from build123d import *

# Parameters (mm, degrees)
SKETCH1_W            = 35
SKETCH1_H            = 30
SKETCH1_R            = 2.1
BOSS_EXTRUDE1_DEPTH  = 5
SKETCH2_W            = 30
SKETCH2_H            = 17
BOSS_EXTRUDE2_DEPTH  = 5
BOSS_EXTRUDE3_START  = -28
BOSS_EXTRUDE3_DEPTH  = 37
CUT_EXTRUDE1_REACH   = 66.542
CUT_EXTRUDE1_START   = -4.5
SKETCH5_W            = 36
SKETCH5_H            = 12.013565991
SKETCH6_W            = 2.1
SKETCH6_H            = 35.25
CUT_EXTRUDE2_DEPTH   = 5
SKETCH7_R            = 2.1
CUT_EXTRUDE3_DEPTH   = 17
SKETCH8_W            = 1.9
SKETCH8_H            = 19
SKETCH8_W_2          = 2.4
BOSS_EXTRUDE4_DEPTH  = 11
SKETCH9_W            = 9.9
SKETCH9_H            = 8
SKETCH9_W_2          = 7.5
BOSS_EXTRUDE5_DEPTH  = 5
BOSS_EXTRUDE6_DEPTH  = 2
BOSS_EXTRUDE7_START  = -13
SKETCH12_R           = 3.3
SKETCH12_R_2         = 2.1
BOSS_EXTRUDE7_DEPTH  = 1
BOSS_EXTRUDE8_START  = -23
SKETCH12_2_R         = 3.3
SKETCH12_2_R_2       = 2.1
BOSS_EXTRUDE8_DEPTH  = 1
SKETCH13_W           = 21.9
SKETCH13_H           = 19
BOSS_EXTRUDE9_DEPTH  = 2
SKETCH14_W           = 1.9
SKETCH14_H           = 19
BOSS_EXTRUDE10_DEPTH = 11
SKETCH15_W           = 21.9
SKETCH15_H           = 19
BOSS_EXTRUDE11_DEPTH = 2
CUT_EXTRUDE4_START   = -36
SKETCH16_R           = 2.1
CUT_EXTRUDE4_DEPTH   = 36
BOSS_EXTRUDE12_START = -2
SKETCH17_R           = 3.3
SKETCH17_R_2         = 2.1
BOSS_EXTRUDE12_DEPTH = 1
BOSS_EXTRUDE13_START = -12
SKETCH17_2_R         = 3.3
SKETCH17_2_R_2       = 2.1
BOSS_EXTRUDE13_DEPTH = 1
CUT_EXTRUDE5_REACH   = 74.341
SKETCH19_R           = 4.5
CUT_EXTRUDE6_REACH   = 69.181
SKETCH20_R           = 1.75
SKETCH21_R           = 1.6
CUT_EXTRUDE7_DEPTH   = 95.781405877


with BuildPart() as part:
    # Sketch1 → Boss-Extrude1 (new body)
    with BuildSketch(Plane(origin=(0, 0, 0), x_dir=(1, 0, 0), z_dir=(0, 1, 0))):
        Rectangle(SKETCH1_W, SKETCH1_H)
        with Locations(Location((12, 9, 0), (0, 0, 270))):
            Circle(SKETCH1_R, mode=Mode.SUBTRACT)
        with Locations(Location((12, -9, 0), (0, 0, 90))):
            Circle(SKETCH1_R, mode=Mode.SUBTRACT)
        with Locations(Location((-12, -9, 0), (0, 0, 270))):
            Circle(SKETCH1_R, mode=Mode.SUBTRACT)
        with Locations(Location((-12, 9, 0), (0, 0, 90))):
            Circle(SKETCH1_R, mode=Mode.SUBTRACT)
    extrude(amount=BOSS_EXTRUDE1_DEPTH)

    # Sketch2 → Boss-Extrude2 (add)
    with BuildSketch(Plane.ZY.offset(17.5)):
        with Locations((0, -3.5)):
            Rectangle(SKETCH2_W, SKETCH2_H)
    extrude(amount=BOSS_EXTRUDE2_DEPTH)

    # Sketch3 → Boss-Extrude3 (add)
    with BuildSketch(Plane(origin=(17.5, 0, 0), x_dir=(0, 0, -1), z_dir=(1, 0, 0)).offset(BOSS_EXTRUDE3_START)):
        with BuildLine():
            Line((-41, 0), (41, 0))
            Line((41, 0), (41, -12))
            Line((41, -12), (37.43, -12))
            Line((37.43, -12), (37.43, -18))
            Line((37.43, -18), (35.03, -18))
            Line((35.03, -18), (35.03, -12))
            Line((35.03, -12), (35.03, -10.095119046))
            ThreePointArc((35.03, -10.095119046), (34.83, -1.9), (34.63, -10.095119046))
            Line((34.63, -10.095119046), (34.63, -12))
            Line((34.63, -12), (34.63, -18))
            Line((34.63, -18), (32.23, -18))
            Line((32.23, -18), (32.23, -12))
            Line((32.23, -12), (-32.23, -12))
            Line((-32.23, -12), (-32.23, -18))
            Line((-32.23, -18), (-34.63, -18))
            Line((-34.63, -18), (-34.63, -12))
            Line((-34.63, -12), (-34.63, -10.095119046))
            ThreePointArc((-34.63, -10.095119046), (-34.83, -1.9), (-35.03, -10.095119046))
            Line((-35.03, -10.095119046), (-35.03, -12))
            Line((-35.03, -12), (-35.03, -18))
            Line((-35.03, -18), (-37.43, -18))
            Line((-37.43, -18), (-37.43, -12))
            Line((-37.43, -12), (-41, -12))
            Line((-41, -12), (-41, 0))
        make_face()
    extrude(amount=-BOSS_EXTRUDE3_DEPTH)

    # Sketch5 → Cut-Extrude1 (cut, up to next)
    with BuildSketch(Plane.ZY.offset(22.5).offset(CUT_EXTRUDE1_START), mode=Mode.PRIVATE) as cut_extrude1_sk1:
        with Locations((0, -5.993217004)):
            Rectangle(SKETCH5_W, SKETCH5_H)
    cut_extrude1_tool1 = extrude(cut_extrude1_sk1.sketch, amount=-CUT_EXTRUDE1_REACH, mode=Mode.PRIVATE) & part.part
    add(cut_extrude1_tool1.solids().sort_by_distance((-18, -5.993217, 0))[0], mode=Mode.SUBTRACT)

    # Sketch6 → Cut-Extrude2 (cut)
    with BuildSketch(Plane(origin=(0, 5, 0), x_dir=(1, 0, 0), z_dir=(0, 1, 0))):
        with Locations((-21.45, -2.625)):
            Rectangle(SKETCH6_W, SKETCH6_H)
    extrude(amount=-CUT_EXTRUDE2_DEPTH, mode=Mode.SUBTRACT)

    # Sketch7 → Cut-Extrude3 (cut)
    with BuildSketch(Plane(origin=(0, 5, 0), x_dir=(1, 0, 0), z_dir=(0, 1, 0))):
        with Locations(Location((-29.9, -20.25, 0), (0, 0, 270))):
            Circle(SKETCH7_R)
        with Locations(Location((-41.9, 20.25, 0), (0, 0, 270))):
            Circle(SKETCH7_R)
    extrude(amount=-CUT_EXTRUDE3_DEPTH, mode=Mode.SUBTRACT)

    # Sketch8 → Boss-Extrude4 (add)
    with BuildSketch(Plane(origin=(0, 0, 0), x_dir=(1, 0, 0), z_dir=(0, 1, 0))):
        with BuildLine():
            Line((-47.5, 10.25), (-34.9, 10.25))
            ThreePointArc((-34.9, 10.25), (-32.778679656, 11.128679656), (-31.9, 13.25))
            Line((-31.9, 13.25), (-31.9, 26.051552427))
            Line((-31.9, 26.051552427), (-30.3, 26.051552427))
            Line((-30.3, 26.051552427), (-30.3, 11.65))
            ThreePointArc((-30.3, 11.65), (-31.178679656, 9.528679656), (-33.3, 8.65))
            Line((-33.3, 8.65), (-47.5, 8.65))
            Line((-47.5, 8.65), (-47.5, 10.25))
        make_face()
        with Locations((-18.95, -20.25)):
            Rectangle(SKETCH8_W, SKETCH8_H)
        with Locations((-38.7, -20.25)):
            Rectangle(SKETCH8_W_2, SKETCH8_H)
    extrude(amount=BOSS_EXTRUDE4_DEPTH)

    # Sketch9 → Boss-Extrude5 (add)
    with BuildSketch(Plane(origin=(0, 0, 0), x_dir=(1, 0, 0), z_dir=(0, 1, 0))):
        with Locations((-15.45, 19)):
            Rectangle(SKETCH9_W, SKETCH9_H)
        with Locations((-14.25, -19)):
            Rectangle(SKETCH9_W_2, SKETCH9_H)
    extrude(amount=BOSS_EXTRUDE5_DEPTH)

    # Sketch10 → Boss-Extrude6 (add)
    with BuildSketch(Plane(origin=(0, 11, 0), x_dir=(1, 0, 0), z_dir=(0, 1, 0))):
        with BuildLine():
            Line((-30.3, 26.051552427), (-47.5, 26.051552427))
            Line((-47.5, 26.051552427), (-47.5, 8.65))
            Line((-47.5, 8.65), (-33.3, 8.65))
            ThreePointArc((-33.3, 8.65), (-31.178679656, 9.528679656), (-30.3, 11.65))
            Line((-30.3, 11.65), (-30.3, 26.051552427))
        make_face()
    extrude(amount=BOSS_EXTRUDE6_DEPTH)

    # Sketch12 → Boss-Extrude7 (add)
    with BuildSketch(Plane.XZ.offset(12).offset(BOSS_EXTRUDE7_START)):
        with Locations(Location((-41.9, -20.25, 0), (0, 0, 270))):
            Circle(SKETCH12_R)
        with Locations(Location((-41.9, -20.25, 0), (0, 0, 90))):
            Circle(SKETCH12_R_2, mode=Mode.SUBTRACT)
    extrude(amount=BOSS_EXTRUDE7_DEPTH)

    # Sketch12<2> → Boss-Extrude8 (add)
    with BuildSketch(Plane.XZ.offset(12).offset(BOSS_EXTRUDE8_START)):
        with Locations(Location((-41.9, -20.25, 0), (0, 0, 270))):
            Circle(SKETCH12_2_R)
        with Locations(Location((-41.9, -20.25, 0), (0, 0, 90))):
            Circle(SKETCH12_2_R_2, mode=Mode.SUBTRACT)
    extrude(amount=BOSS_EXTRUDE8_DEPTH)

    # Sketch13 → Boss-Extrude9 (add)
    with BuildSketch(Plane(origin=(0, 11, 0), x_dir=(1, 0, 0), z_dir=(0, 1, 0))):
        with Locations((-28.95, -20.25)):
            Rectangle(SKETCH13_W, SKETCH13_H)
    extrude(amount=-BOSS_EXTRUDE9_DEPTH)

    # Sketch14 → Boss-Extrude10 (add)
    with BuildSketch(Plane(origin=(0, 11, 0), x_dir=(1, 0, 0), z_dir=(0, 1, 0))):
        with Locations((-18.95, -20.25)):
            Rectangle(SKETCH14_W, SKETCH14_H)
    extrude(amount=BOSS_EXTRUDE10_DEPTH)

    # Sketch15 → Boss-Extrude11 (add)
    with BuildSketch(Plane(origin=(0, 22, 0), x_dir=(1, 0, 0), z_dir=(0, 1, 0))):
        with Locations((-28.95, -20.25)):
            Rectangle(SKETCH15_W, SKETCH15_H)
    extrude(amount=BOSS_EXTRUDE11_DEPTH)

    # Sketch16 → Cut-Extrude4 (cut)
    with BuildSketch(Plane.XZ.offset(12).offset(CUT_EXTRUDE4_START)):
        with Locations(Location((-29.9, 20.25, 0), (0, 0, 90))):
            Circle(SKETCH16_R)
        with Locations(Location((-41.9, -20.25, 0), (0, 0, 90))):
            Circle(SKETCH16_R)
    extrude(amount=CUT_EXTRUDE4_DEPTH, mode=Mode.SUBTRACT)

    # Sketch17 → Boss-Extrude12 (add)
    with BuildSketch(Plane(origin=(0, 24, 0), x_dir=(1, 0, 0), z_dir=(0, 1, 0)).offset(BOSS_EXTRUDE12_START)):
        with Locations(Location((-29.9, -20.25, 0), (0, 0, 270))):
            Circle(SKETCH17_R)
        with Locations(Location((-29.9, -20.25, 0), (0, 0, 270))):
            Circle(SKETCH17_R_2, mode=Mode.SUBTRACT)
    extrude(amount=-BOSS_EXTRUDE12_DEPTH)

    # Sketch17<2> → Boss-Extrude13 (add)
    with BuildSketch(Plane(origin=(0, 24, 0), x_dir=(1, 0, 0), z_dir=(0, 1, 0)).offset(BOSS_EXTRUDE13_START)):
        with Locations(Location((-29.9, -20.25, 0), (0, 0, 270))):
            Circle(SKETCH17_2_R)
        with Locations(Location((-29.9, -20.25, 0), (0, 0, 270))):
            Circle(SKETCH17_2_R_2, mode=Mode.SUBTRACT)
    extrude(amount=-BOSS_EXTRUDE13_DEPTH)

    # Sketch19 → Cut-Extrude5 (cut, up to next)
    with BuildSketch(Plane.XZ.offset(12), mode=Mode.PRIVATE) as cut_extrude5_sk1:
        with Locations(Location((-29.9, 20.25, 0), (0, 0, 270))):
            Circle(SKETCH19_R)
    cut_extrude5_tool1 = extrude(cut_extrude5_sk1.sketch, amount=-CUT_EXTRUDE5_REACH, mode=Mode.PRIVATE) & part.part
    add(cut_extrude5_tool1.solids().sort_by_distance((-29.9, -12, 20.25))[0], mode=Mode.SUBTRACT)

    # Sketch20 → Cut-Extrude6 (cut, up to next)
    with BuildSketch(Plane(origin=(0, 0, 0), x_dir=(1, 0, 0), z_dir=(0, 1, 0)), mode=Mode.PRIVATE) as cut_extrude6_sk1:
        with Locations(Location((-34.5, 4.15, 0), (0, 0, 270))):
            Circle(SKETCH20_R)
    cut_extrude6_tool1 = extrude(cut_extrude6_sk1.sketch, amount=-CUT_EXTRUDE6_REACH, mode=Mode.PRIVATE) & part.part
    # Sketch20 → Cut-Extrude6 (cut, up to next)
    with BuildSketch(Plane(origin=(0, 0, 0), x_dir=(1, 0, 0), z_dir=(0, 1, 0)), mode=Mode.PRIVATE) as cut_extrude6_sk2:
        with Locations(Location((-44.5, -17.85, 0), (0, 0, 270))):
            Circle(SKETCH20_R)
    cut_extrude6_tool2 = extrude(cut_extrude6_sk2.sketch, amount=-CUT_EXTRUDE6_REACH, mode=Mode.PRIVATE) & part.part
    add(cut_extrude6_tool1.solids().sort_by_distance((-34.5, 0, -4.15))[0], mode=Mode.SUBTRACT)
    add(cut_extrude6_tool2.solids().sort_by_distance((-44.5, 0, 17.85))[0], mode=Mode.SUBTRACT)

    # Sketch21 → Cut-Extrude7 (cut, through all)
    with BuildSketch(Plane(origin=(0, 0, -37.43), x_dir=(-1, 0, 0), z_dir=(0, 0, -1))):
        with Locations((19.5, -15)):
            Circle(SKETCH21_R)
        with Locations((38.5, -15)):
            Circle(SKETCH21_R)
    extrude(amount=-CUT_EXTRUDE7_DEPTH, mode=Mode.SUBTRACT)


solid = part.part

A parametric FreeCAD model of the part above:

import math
import FreeCAD as App
import Part
import Sketcher
from FreeCAD import Vector

doc = App.newDocument("Part")
body = doc.addObject("PartDesign::Body", "Body")

sketch1 = body.newObject("Sketcher::SketchObject", "Sketch")
sketch1.AttachmentSupport = (doc.getObject("XZ_Plane"), [""])
sketch1.MapMode = "FlatFace"
sketch1.addGeometry([
    Part.LineSegment(Vector(-17.5, -15, 0), Vector(-17.5, 15, 0)),
    Part.LineSegment(Vector(-17.5, 15, 0), Vector(17.5, 15, 0)),
    Part.LineSegment(Vector(17.5, 15, 0), Vector(17.5, -15, 0)),
    Part.LineSegment(Vector(17.5, -15, 0), Vector(-17.5, -15, 0)),
    Part.Circle(Vector(-12, 9, 0), Vector(0, 0, 1), 2.1),
    Part.Circle(Vector(12, 9, 0), Vector(0, 0, 1), 2.1),
    Part.Circle(Vector(-12, -9, 0), Vector(0, 0, 1), 2.1),
    Part.Circle(Vector(12, -9, 0), Vector(0, 0, 1), 2.1),
], False)
sketch1.addConstraint([
    Sketcher.Constraint("Coincident", 0, 2, 1, 1),
    Sketcher.Constraint("Coincident", 1, 2, 2, 1),
    Sketcher.Constraint("Coincident", 2, 2, 3, 1),
    Sketcher.Constraint("Coincident", 3, 2, 0, 1),
    Sketcher.Constraint("Vertical", 0),
    Sketcher.Constraint("Horizontal", 1),
    Sketcher.Constraint("Vertical", 2),
    Sketcher.Constraint("Horizontal", 3),
    Sketcher.Constraint("Equal", 4, 5),
    Sketcher.Constraint("Equal", 5, 6),
    Sketcher.Constraint("Equal", 6, 7),
    Sketcher.Constraint("Symmetric", 5, 3, 6, 3, -1, 1),
    Sketcher.Constraint("Symmetric", 4, 3, 7, 3, -1, 1),
    Sketcher.Constraint("Symmetric", 0, 2, 2, 2, -1, 1),
    Sketcher.Constraint("Symmetric", 4, 3, 5, 3, -2),
    Sketcher.Constraint("Diameter", 4, 4.2),
    Sketcher.Constraint("DistanceX", 1, 1, 1, 2, 35.0),
    Sketcher.Constraint("DistanceY", 0, 1, 0, 2, 30.0),
    Sketcher.Constraint("DistanceX", 4, 3, -1, 1, 12.0),
    Sketcher.Constraint("DistanceY", -1, 1, 4, 3, 9.0),
])
pad1 = body.newObject("PartDesign::Pad", "Pad")
pad1.Profile = sketch1
pad1.Length = 5
pad1.Reversed = True

sketch2 = body.newObject("Sketcher::SketchObject", "Sketch001")
sketch2.AttachmentSupport = (doc.getObject("YZ_Plane"), [""])
sketch2.MapMode = "FlatFace"
sketch2.AttachmentOffset = App.Placement(Vector(0, 0, -17.5), App.Rotation())
sketch2.addGeometry([
    Part.LineSegment(Vector(5, -15, 0), Vector(-12, -15, 0)),
    Part.LineSegment(Vector(-12, -15, 0), Vector(-12, 15, 0)),
    Part.LineSegment(Vector(-12, 15, 0), Vector(5, 15, 0)),
    Part.LineSegment(Vector(5, 15, 0), Vector(5, -15, 0)),
], False)
sketch2.addConstraint([
    Sketcher.Constraint("Coincident", 0, 2, 1, 1),
    Sketcher.Constraint("Coincident", 1, 2, 2, 1),
    Sketcher.Constraint("Coincident", 2, 2, 3, 1),
    Sketcher.Constraint("Coincident", 3, 2, 0, 1),
    Sketcher.Constraint("Horizontal", 0),
    Sketcher.Constraint("Vertical", 1),
    Sketcher.Constraint("Horizontal", 2),
    Sketcher.Constraint("Vertical", 3),
    Sketcher.Constraint("DistanceX", 0, 2, 0, 1, 17.0),
    Sketcher.Constraint("DistanceY", 1, 1, 1, 2, 30.0),
    Sketcher.Constraint("DistanceX", 0, 2, -1, 1, 12.0),
    Sketcher.Constraint("DistanceY", 0, 2, -1, 1, 15.0),
])
pad2 = body.newObject("PartDesign::Pad", "Pad001")
pad2.Profile = sketch2
pad2.Length = 5
pad2.Reversed = True

sketch3 = body.newObject("Sketcher::SketchObject", "Sketch002")
sketch3.AttachmentSupport = (doc.getObject("YZ_Plane"), [""])
sketch3.MapMode = "FlatFace"
sketch3.AttachmentOffset = App.Placement(Vector(0, 0, -10.5), App.Rotation())
sketch3.addGeometry([
    Part.LineSegment(Vector(0, -41, 0), Vector(0, 41, 0)),
    Part.LineSegment(Vector(0, 41, 0), Vector(-12, 41, 0)),
    Part.LineSegment(Vector(-12, 41, 0), Vector(-12, 37.43, 0)),
    Part.LineSegment(Vector(-12, 37.43, 0), Vector(-18, 37.43, 0)),
    Part.LineSegment(Vector(-18, 37.43, 0), Vector(-18, 35.03, 0)),
    Part.LineSegment(Vector(-18, 35.03, 0), Vector(-10.1, 35.03, 0)),
    Part.ArcOfCircle(Part.Circle(Vector(-6, 34.83, 0), Vector(0, 0, 1), 4.1), math.radians(-177), math.radians(177)),
    Part.LineSegment(Vector(-10.1, 34.63, 0), Vector(-18, 34.63, 0)),
    Part.LineSegment(Vector(-18, 34.63, 0), Vector(-18, 32.23, 0)),
    Part.LineSegment(Vector(-18, 32.23, 0), Vector(-12, 32.23, 0)),
    Part.LineSegment(Vector(-12, 32.23, 0), Vector(-12, -32.23, 0)),
    Part.LineSegment(Vector(-12, -32.23, 0), Vector(-18, -32.23, 0)),
    Part.LineSegment(Vector(-18, -32.23, 0), Vector(-18, -34.63, 0)),
    Part.LineSegment(Vector(-18, -34.63, 0), Vector(-10.1, -34.63, 0)),
    Part.ArcOfCircle(Part.Circle(Vector(-6, -34.83, 0), Vector(0, 0, 1), 4.1), math.radians(-177), math.radians(177)),
    Part.LineSegment(Vector(-10.1, -35.03, 0), Vector(-18, -35.03, 0)),
    Part.LineSegment(Vector(-18, -35.03, 0), Vector(-18, -37.43, 0)),
    Part.LineSegment(Vector(-18, -37.43, 0), Vector(-12, -37.43, 0)),
    Part.LineSegment(Vector(-12, -37.43, 0), Vector(-12, -41, 0)),
    Part.LineSegment(Vector(-12, -41, 0), Vector(0, -41, 0)),
], False)
sketch3.addConstraint([
    Sketcher.Constraint("Coincident", 0, 2, 1, 1),
    Sketcher.Constraint("Coincident", 1, 2, 2, 1),
    Sketcher.Constraint("Coincident", 2, 2, 3, 1),
    Sketcher.Constraint("Coincident", 3, 2, 4, 1),
    Sketcher.Constraint("Coincident", 4, 2, 5, 1),
    Sketcher.Constraint("Coincident", 5, 2, 6, 2),
    Sketcher.Constraint("Coincident", 6, 1, 7, 1),
    Sketcher.Constraint("Coincident", 7, 2, 8, 1),
    Sketcher.Constraint("Coincident", 8, 2, 9, 1),
    Sketcher.Constraint("Coincident", 9, 2, 10, 1),
    Sketcher.Constraint("Coincident", 10, 2, 11, 1),
    Sketcher.Constraint("Coincident", 11, 2, 12, 1),
    Sketcher.Constraint("Coincident", 12, 2, 13, 1),
    Sketcher.Constraint("Coincident", 13, 2, 14, 2),
    Sketcher.Constraint("Coincident", 14, 1, 15, 1),
    Sketcher.Constraint("Coincident", 15, 2, 16, 1),
    Sketcher.Constraint("Coincident", 16, 2, 17, 1),
    Sketcher.Constraint("Coincident", 17, 2, 18, 1),
    Sketcher.Constraint("Coincident", 18, 2, 19, 1),
    Sketcher.Constraint("Coincident", 19, 2, 0, 1),
    Sketcher.Constraint("Vertical", 0),
    Sketcher.Constraint("Horizontal", 1),
    Sketcher.Constraint("Vertical", 2),
    Sketcher.Constraint("Horizontal", 3),
    Sketcher.Constraint("Vertical", 4),
    Sketcher.Constraint("Horizontal", 5),
    Sketcher.Constraint("Horizontal", 7),
    Sketcher.Constraint("Vertical", 8),
    Sketcher.Constraint("Horizontal", 9),
    Sketcher.Constraint("Vertical", 10),
    Sketcher.Constraint("Horizontal", 11),
    Sketcher.Constraint("Vertical", 12),
    Sketcher.Constraint("Horizontal", 13),
    Sketcher.Constraint("Horizontal", 15),
    Sketcher.Constraint("Vertical", 16),
    Sketcher.Constraint("Horizontal", 17),
    Sketcher.Constraint("Vertical", 18),
    Sketcher.Constraint("Horizontal", 19),
    Sketcher.Constraint("Equal", 6, 14),
    Sketcher.Constraint("Symmetric", 0, 2, 19, 2, -1, 1),
    Sketcher.Constraint("Symmetric", 6, 3, 14, 3, -1),
    Sketcher.Constraint("Symmetric", 8, 2, 11, 2, -1),
    Sketcher.Constraint("Symmetric", 4, 2, 15, 2, -1),
    Sketcher.Constraint("Symmetric", 2, 2, 17, 2, -1),
    Sketcher.Constraint("Vertical", 5, 2, 6, 1),
    Sketcher.Constraint("Vertical", 4, 2, 7, 2),
    Sketcher.Constraint("Vertical", 2, 2, 9, 2),
    Sketcher.Constraint("Vertical", 6, 1, 13, 2),
    Sketcher.Constraint("Equal", 4, 8),
    Sketcher.Constraint("Radius", 6, 4.1),
    Sketcher.Constraint("DistanceX", 1, 2, 1, 1, 12.0),
    Sketcher.Constraint("DistanceX", 3, 2, 3, 1, 6.0),
    Sketcher.Constraint("DistanceY", 0, 1, 0, 2, 82.0),
    Sketcher.Constraint("DistanceY", 4, 2, 4, 1, 2.4),
    Sketcher.Constraint("DistanceX", 6, 3, -1, 1, 6.0),
    Sketcher.Constraint("DistanceY", 2, 2, 2, 1, 3.57),
    Sketcher.Constraint("DistanceY", 10, 2, 10, 1, 64.46),
])
pad3 = body.newObject("PartDesign::Pad", "Pad002")
pad3.Profile = sketch3
pad3.Length = 37
pad3.Reversed = True

sketch4 = body.newObject("Sketcher::SketchObject", "Sketch003")
sketch4.AttachmentSupport = (doc.getObject("YZ_Plane"), [""])
sketch4.MapMode = "FlatFace"
sketch4.AttachmentOffset = App.Placement(Vector(0, 0, -18), App.Rotation())
sketch4.addGeometry([
    Part.LineSegment(Vector(0, -18, 0), Vector(-12, -18, 0)),
    Part.LineSegment(Vector(-12, -18, 0), Vector(-12, 18, 0)),
    Part.LineSegment(Vector(-12, 18, 0), Vector(0, 18, 0)),
    Part.LineSegment(Vector(0, 18, 0), Vector(0, -18, 0)),
], False)
sketch4.addConstraint([
    Sketcher.Constraint("Coincident", 0, 2, 1, 1),
    Sketcher.Constraint("Coincident", 1, 2, 2, 1),
    Sketcher.Constraint("Coincident", 2, 2, 3, 1),
    Sketcher.Constraint("Coincident", 3, 2, 0, 1),
    Sketcher.Constraint("Horizontal", 0),
    Sketcher.Constraint("Vertical", 1),
    Sketcher.Constraint("Horizontal", 2),
    Sketcher.Constraint("Vertical", 3),
    Sketcher.Constraint("DistanceY", 1, 1, 1, 2, 36.0),
    Sketcher.Constraint("DistanceX", 0, 2, -1, 1, 12.0),
    Sketcher.Constraint("DistanceY", 0, 2, -1, 1, 18.0),
    Sketcher.Constraint("DistanceX", 0, 2, 0, 1, 12.013566),
])
pocket1 = body.newObject("PartDesign::Pocket", "Pocket")
pocket1.Profile = sketch4
pocket1.Length = 35.5
pocket1.Reversed = True

sketch5 = body.newObject("Sketcher::SketchObject", "Sketch004")
sketch5.AttachmentSupport = (doc.getObject("XZ_Plane"), [""])
sketch5.MapMode = "FlatFace"
sketch5.AttachmentOffset = App.Placement(Vector(0, 0, -5), App.Rotation())
sketch5.addGeometry([
    Part.LineSegment(Vector(-22.5, -15, 0), Vector(-22.5, 20.2, 0)),
    Part.LineSegment(Vector(-22.5, 20.2, 0), Vector(-20.4, 20.2, 0)),
    Part.LineSegment(Vector(-20.4, 20.2, 0), Vector(-20.4, -15, 0)),
    Part.LineSegment(Vector(-20.4, -15, 0), Vector(-22.5, -15, 0)),
], False)
sketch5.addConstraint([
    Sketcher.Constraint("Coincident", 0, 2, 1, 1),
    Sketcher.Constraint("Coincident", 1, 2, 2, 1),
    Sketcher.Constraint("Coincident", 2, 2, 3, 1),
    Sketcher.Constraint("Coincident", 3, 2, 0, 1),
    Sketcher.Constraint("Vertical", 0),
    Sketcher.Constraint("Horizontal", 1),
    Sketcher.Constraint("Vertical", 2),
    Sketcher.Constraint("Horizontal", 3),
    Sketcher.Constraint("DistanceX", 1, 1, 1, 2, 2.1),
    Sketcher.Constraint("DistanceY", 2, 2, -1, 1, 15.0),
    Sketcher.Constraint("DistanceY", 0, 1, 0, 2, 35.25),
    Sketcher.Constraint("DistanceX", 0, 2, -1, 1, 22.5),
])
pocket2 = body.newObject("PartDesign::Pocket", "Pocket001")
pocket2.Profile = sketch5
pocket2.Length = 5
pocket2.Reversed = True

sketch6 = body.newObject("Sketcher::SketchObject", "Sketch005")
sketch6.AttachmentSupport = (doc.getObject("XZ_Plane"), [""])
sketch6.MapMode = "FlatFace"
sketch6.AttachmentOffset = App.Placement(Vector(0, 0, -5), App.Rotation())
sketch6.addGeometry([
    Part.Circle(Vector(-29.9, 20.2, 0), Vector(0, 0, 1), 2.1),
    Part.Circle(Vector(-41.9, -20.2, 0), Vector(0, 0, 1), 2.1),
], False)
sketch6.addConstraint([
    Sketcher.Constraint("Equal", 0, 1),
    Sketcher.Constraint("Diameter", 0, 4.2),
    Sketcher.Constraint("DistanceX", 1, 3, 0, 3, 12.0),
    Sketcher.Constraint("DistanceX", 0, 3, -1, 1, 29.9),
    Sketcher.Constraint("DistanceY", 1, 3, 0, 3, 40.5),
    Sketcher.Constraint("DistanceY", -1, 1, 0, 3, 20.25),
])
pocket3 = body.newObject("PartDesign::Pocket", "Pocket002")
pocket3.Profile = sketch6
pocket3.Length = 17
pocket3.Reversed = True

sketch7 = body.newObject("Sketcher::SketchObject", "Sketch006")
sketch7.AttachmentSupport = (doc.getObject("XZ_Plane"), [""])
sketch7.MapMode = "FlatFace"
sketch7.addGeometry([
    Part.LineSegment(Vector(-34.9, -10.2, 0), Vector(-47.5, -10.2, 0)),
    Part.LineSegment(Vector(-47.5, -10.2, 0), Vector(-47.5, -8.7, 0)),
    Part.LineSegment(Vector(-47.5, -8.7, 0), Vector(-33.3, -8.7, 0)),
    Part.ArcOfCircle(Part.Circle(Vector(-33.3, -11.6, 0), Vector(0, 0, 1), 3), math.radians(0), math.radians(90)),
    Part.LineSegment(Vector(-30.3, -11.7, 0), Vector(-30.3, -26.1, 0)),
    Part.LineSegment(Vector(-30.3, -26.1, 0), Vector(-31.9, -26.1, 0)),
    Part.LineSegment(Vector(-31.9, -26.1, 0), Vector(-31.9, -13.2, 0)),
    Part.ArcOfCircle(Part.Circle(Vector(-34.9, -13.2, 0), Vector(0, 0, 1), 3), math.radians(0), math.radians(90)),
    Part.LineSegment(Vector(-19.9, 10.8, 0), Vector(-19.9, 29.8, 0)),
    Part.LineSegment(Vector(-19.9, 29.8, 0), Vector(-18, 29.8, 0)),
    Part.LineSegment(Vector(-18, 29.8, 0), Vector(-18, 10.8, 0)),
    Part.LineSegment(Vector(-18, 10.8, 0), Vector(-19.9, 10.8, 0)),
    Part.LineSegment(Vector(-39.9, 10.8, 0), Vector(-39.9, 29.8, 0)),
    Part.LineSegment(Vector(-39.9, 29.8, 0), Vector(-37.5, 29.8, 0)),
    Part.LineSegment(Vector(-37.5, 29.8, 0), Vector(-37.5, 10.8, 0)),
    Part.LineSegment(Vector(-37.5, 10.8, 0), Vector(-39.9, 10.8, 0)),
], False)
sketch7.addConstraint([
    Sketcher.Constraint("Coincident", 0, 2, 1, 1),
    Sketcher.Constraint("Coincident", 1, 2, 2, 1),
    Sketcher.Constraint("Tangent", 2, 2, 3, 2),
    Sketcher.Constraint("Tangent", 3, 1, 4, 1),
    Sketcher.Constraint("Coincident", 4, 2, 5, 1),
    Sketcher.Constraint("Coincident", 5, 2, 6, 1),
    Sketcher.Constraint("Tangent", 6, 2, 7, 1),
    Sketcher.Constraint("Tangent", 7, 2, 0, 1),
    Sketcher.Constraint("Coincident", 8, 2, 9, 1),
    Sketcher.Constraint("Coincident", 9, 2, 10, 1),
    Sketcher.Constraint("Coincident", 10, 2, 11, 1),
    Sketcher.Constraint("Coincident", 11, 2, 8, 1),
    Sketcher.Constraint("Coincident", 12, 2, 13, 1),
    Sketcher.Constraint("Coincident", 13, 2, 14, 1),
    Sketcher.Constraint("Coincident", 14, 2, 15, 1),
    Sketcher.Constraint("Coincident", 15, 2, 12, 1),
    Sketcher.Constraint("Horizontal", 0),
    Sketcher.Constraint("Vertical", 1),
    Sketcher.Constraint("Horizontal", 2),
    Sketcher.Constraint("Vertical", 4),
    Sketcher.Constraint("Horizontal", 5),
    Sketcher.Constraint("Vertical", 6),
    Sketcher.Constraint("Vertical", 8),
    Sketcher.Constraint("Horizontal", 9),
    Sketcher.Constraint("Vertical", 10),
    Sketcher.Constraint("Horizontal", 11),
    Sketcher.Constraint("Vertical", 12),
    Sketcher.Constraint("Horizontal", 13),
    Sketcher.Constraint("Vertical", 14),
    Sketcher.Constraint("Horizontal", 15),
    Sketcher.Constraint("Equal", 3, 7),
    Sketcher.Constraint("Horizontal", 9, 2, 12, 2),
    Sketcher.Constraint("Horizontal", 11, 2, 14, 2),
    Sketcher.Constraint("Equal", 5, 1),
    Sketcher.Constraint("Radius", 3, 3.0),
    Sketcher.Constraint("DistanceY", 8, 1, 8, 2, 19.0),
    Sketcher.Constraint("DistanceX", 0, 2, 0, 1, 12.6),
    Sketcher.Constraint("DistanceX", 2, 1, 2, 2, 14.2),
    Sketcher.Constraint("DistanceX", 9, 1, 9, 2, 1.9),
    Sketcher.Constraint("DistanceX", 13, 1, 13, 2, 2.4),
    Sketcher.Constraint("DistanceX", 9, 2, -1, 1, 18.0),
    Sketcher.Constraint("DistanceX", 7, 2, 8, 2, 15.0),
    Sketcher.Constraint("DistanceY", 7, 2, 8, 2, 40.0),
    Sketcher.Constraint("DistanceX", 12, 2, 8, 2, 20.0),
    Sketcher.Constraint("DistanceY", 3, 3, -1, 1, 11.65),
    Sketcher.Constraint("DistanceY", 4, 2, 4, 1, 14.401552),
])
pad4 = body.newObject("PartDesign::Pad", "Pad003")
pad4.Profile = sketch7
pad4.Length = 11
pad4.Reversed = True

sketch8 = body.newObject("Sketcher::SketchObject", "Sketch007")
sketch8.AttachmentSupport = (doc.getObject("XZ_Plane"), [""])
sketch8.MapMode = "FlatFace"
sketch8.addGeometry([
    Part.LineSegment(Vector(-20, -23, 0), Vector(-20, -15, 0)),
    Part.LineSegment(Vector(-20, -15, 0), Vector(-10, -15, 0)),
    Part.LineSegment(Vector(-10, -15, 0), Vector(-10, -23, 0)),
    Part.LineSegment(Vector(-10, -23, 0), Vector(-20, -23, 0)),
    Part.LineSegment(Vector(-18, 15, 0), Vector(-18, 23, 0)),
    Part.LineSegment(Vector(-18, 23, 0), Vector(-10, 23, 0)),
    Part.LineSegment(Vector(-10, 23, 0), Vector(-10, 15, 0)),
    Part.LineSegment(Vector(-10, 15, 0), Vector(-18, 15, 0)),
], False)
sketch8.addConstraint([
    Sketcher.Constraint("Coincident", 0, 2, 1, 1),
    Sketcher.Constraint("Coincident", 1, 2, 2, 1),
    Sketcher.Constraint("Coincident", 2, 2, 3, 1),
    Sketcher.Constraint("Coincident", 3, 2, 0, 1),
    Sketcher.Constraint("Coincident", 4, 2, 5, 1),
    Sketcher.Constraint("Coincident", 5, 2, 6, 1),
    Sketcher.Constraint("Coincident", 6, 2, 7, 1),
    Sketcher.Constraint("Coincident", 7, 2, 4, 1),
    Sketcher.Constraint("Vertical", 0),
    Sketcher.Constraint("Horizontal", 1),
    Sketcher.Constraint("Vertical", 2),
    Sketcher.Constraint("Horizontal", 3),
    Sketcher.Constraint("Vertical", 4),
    Sketcher.Constraint("Horizontal", 5),
    Sketcher.Constraint("Vertical", 6),
    Sketcher.Constraint("Horizontal", 7),
    Sketcher.Constraint("Symmetric", 2, 2, 5, 2, -1),
    Sketcher.Constraint("Equal", 2, 4),
    Sketcher.Constraint("DistanceY", 0, 1, 0, 2, 8.0),
    Sketcher.Constraint("DistanceX", 1, 1, 1, 2, 9.9),
    Sketcher.Constraint("DistanceX", 5, 1, 5, 2, 7.5),
    Sketcher.Constraint("DistanceY", 0, 2, -1, 1, 15.0),
    Sketcher.Constraint("DistanceX", 4, 2, -1, 1, 18.0),
])
pad5 = body.newObject("PartDesign::Pad", "Pad004")
pad5.Profile = sketch8
pad5.Length = 5
pad5.Reversed = True

sketch9 = body.newObject("Sketcher::SketchObject", "Sketch008")
sketch9.AttachmentSupport = (doc.getObject("XZ_Plane"), [""])
sketch9.MapMode = "FlatFace"
sketch9.AttachmentOffset = App.Placement(Vector(0, 0, -11), App.Rotation())
sketch9.addGeometry([
    Part.LineSegment(Vector(-30.3, -26.1, 0), Vector(-47.5, -26.1, 0)),
    Part.LineSegment(Vector(-47.5, -26.1, 0), Vector(-47.5, -8.7, 0)),
    Part.LineSegment(Vector(-47.5, -8.7, 0), Vector(-33.3, -8.7, 0)),
    Part.ArcOfCircle(Part.Circle(Vector(-33.3, -11.6, 0), Vector(0, 0, 1), 3), math.radians(0), math.radians(90)),
    Part.LineSegment(Vector(-30.3, -11.7, 0), Vector(-30.3, -26.1, 0)),
], False)
sketch9.addConstraint([
    Sketcher.Constraint("Coincident", 0, 2, 1, 1),
    Sketcher.Constraint("Coincident", 1, 2, 2, 1),
    Sketcher.Constraint("Tangent", 2, 2, 3, 2),
    Sketcher.Constraint("Tangent", 3, 1, 4, 1),
    Sketcher.Constraint("Coincident", 4, 2, 0, 1),
    Sketcher.Constraint("Horizontal", 0),
    Sketcher.Constraint("Vertical", 1),
    Sketcher.Constraint("Horizontal", 2),
    Sketcher.Constraint("Vertical", 4),
    Sketcher.Constraint("Radius", 3, 3.0),
    Sketcher.Constraint("DistanceX", 0, 2, 0, 1, 17.2),
    Sketcher.Constraint("DistanceX", 3, 3, -1, 1, 33.3),
    Sketcher.Constraint("DistanceY", 3, 3, -1, 1, 11.65),
    Sketcher.Constraint("DistanceY", 1, 1, 1, 2, 17.401552),
])
pad6 = body.newObject("PartDesign::Pad", "Pad005")
pad6.Profile = sketch9
pad6.Length = 2
pad6.Reversed = True

sketch10 = body.newObject("Sketcher::SketchObject", "Sketch009")
sketch10.AttachmentSupport = (doc.getObject("XZ_Plane"), [""])
sketch10.MapMode = "FlatFace"
sketch10.AttachmentOffset = App.Placement(Vector(0, 0, -1), App.Rotation())
sketch10.addGeometry([
    Part.Circle(Vector(-41.9, -20.2, 0), Vector(0, 0, 1), 3.3),
    Part.Circle(Vector(-41.9, -20.2, 0), Vector(0, 0, 1), 2.1),
], False)
sketch10.addConstraint([
    Sketcher.Constraint("Coincident", 1, 3, 0, 3),
    Sketcher.Constraint("Diameter", 0, 6.6),
    Sketcher.Constraint("Diameter", 1, 4.2),
    Sketcher.Constraint("DistanceX", 0, 3, -1, 1, 41.9),
    Sketcher.Constraint("DistanceY", 0, 3, -1, 1, 20.25),
])
pad7 = body.newObject("PartDesign::Pad", "Pad006")
pad7.Profile = sketch10
pad7.Length = 1

sketch11 = body.newObject("Sketcher::SketchObject", "Sketch010")
sketch11.AttachmentSupport = (doc.getObject("XZ_Plane"), [""])
sketch11.MapMode = "FlatFace"
sketch11.AttachmentOffset = App.Placement(Vector(0, 0, -11), App.Rotation())
sketch11.addGeometry([
    Part.Circle(Vector(-41.9, -20.2, 0), Vector(0, 0, 1), 3.3),
    Part.Circle(Vector(-41.9, -20.2, 0), Vector(0, 0, 1), 2.1),
], False)
sketch11.addConstraint([
    Sketcher.Constraint("Coincident", 1, 3, 0, 3),
    Sketcher.Constraint("Diameter", 0, 6.6),
    Sketcher.Constraint("Diameter", 1, 4.2),
    Sketcher.Constraint("DistanceX", 0, 3, -1, 1, 41.9),
    Sketcher.Constraint("DistanceY", 0, 3, -1, 1, 20.25),
])
pad8 = body.newObject("PartDesign::Pad", "Pad007")
pad8.Profile = sketch11
pad8.Length = 1

sketch12 = body.newObject("Sketcher::SketchObject", "Sketch011")
sketch12.AttachmentSupport = (doc.getObject("XZ_Plane"), [""])
sketch12.MapMode = "FlatFace"
sketch12.AttachmentOffset = App.Placement(Vector(0, 0, -11), App.Rotation())
sketch12.addGeometry([
    Part.LineSegment(Vector(-40, 11, 0), Vector(-40, 30, 0)),
    Part.LineSegment(Vector(-40, 30, 0), Vector(-18, 30, 0)),
    Part.LineSegment(Vector(-18, 30, 0), Vector(-18, 11, 0)),
    Part.LineSegment(Vector(-18, 11, 0), Vector(-40, 11, 0)),
], False)
sketch12.addConstraint([
    Sketcher.Constraint("Coincident", 0, 2, 1, 1),
    Sketcher.Constraint("Coincident", 1, 2, 2, 1),
    Sketcher.Constraint("Coincident", 2, 2, 3, 1),
    Sketcher.Constraint("Coincident", 3, 2, 0, 1),
    Sketcher.Constraint("Vertical", 0),
    Sketcher.Constraint("Horizontal", 1),
    Sketcher.Constraint("Vertical", 2),
    Sketcher.Constraint("Horizontal", 3),
    Sketcher.Constraint("DistanceY", 0, 1, 0, 2, 19.0),
    Sketcher.Constraint("DistanceX", 1, 1, 1, 2, 21.9),
    Sketcher.Constraint("DistanceX", 1, 2, -1, 1, 18.0),
    Sketcher.Constraint("DistanceY", -1, 1, 0, 2, 29.75),
])
pad9 = body.newObject("PartDesign::Pad", "Pad008")
pad9.Profile = sketch12
pad9.Length = 2

sketch13 = body.newObject("Sketcher::SketchObject", "Sketch012")
sketch13.AttachmentSupport = (doc.getObject("XZ_Plane"), [""])
sketch13.MapMode = "FlatFace"
sketch13.AttachmentOffset = App.Placement(Vector(0, 0, -11), App.Rotation())
sketch13.addGeometry([
    Part.LineSegment(Vector(-19.9, 10.8, 0), Vector(-19.9, 29.8, 0)),
    Part.LineSegment(Vector(-19.9, 29.8, 0), Vector(-18, 29.8, 0)),
    Part.LineSegment(Vector(-18, 29.8, 0), Vector(-18, 10.8, 0)),
    Part.LineSegment(Vector(-18, 10.8, 0), Vector(-19.9, 10.8, 0)),
], False)
sketch13.addConstraint([
    Sketcher.Constraint("Coincident", 0, 2, 1, 1),
    Sketcher.Constraint("Coincident", 1, 2, 2, 1),
    Sketcher.Constraint("Coincident", 2, 2, 3, 1),
    Sketcher.Constraint("Coincident", 3, 2, 0, 1),
    Sketcher.Constraint("Vertical", 0),
    Sketcher.Constraint("Horizontal", 1),
    Sketcher.Constraint("Vertical", 2),
    Sketcher.Constraint("Horizontal", 3),
    Sketcher.Constraint("DistanceY", 0, 1, 0, 2, 19.0),
    Sketcher.Constraint("DistanceX", 1, 1, 1, 2, 1.9),
    Sketcher.Constraint("DistanceX", 1, 2, -1, 1, 18.0),
    Sketcher.Constraint("DistanceY", -1, 1, 0, 2, 29.75),
])
pad10 = body.newObject("PartDesign::Pad", "Pad009")
pad10.Profile = sketch13
pad10.Length = 11
pad10.Reversed = True

sketch14 = body.newObject("Sketcher::SketchObject", "Sketch013")
sketch14.AttachmentSupport = (doc.getObject("XZ_Plane"), [""])
sketch14.MapMode = "FlatFace"
sketch14.AttachmentOffset = App.Placement(Vector(0, 0, -22), App.Rotation())
sketch14.addGeometry([
    Part.LineSegment(Vector(-40, 11, 0), Vector(-40, 30, 0)),
    Part.LineSegment(Vector(-40, 30, 0), Vector(-18, 30, 0)),
    Part.LineSegment(Vector(-18, 30, 0), Vector(-18, 11, 0)),
    Part.LineSegment(Vector(-18, 11, 0), Vector(-40, 11, 0)),
], False)
sketch14.addConstraint([
    Sketcher.Constraint("Coincident", 0, 2, 1, 1),
    Sketcher.Constraint("Coincident", 1, 2, 2, 1),
    Sketcher.Constraint("Coincident", 2, 2, 3, 1),
    Sketcher.Constraint("Coincident", 3, 2, 0, 1),
    Sketcher.Constraint("Vertical", 0),
    Sketcher.Constraint("Horizontal", 1),
    Sketcher.Constraint("Vertical", 2),
    Sketcher.Constraint("Horizontal", 3),
    Sketcher.Constraint("DistanceY", 0, 1, 0, 2, 19.0),
    Sketcher.Constraint("DistanceX", 1, 1, 1, 2, 21.9),
    Sketcher.Constraint("DistanceX", 1, 2, -1, 1, 18.0),
    Sketcher.Constraint("DistanceY", -1, 1, 0, 2, 29.75),
])
pad11 = body.newObject("PartDesign::Pad", "Pad010")
pad11.Profile = sketch14
pad11.Length = 2
pad11.Reversed = True

sketch15 = body.newObject("Sketcher::SketchObject", "Sketch014")
sketch15.AttachmentSupport = (doc.getObject("XZ_Plane"), [""])
sketch15.MapMode = "FlatFace"
sketch15.AttachmentOffset = App.Placement(Vector(0, 0, -24), App.Rotation())
sketch15.addGeometry([
    Part.Circle(Vector(-29.9, 20.2, 0), Vector(0, 0, 1), 2.1),
    Part.Circle(Vector(-41.9, -20.2, 0), Vector(0, 0, 1), 2.1),
], False)
sketch15.addConstraint([
    Sketcher.Constraint("Equal", 0, 1),
    Sketcher.Constraint("Diameter", 0, 4.2),
    Sketcher.Constraint("DistanceX", 1, 3, 0, 3, 12.0),
    Sketcher.Constraint("DistanceX", 0, 3, -1, 1, 29.9),
    Sketcher.Constraint("DistanceY", 1, 3, 0, 3, 40.5),
    Sketcher.Constraint("DistanceY", -1, 1, 0, 3, 20.25),
])
pocket4 = body.newObject("PartDesign::Pocket", "Pocket003")
pocket4.Profile = sketch15
pocket4.Length = 36
pocket4.Reversed = True

sketch16 = body.newObject("Sketcher::SketchObject", "Sketch015")
sketch16.AttachmentSupport = (doc.getObject("XZ_Plane"), [""])
sketch16.MapMode = "FlatFace"
sketch16.AttachmentOffset = App.Placement(Vector(0, 0, -22), App.Rotation())
sketch16.addGeometry([
    Part.Circle(Vector(-29.9, 20.2, 0), Vector(0, 0, 1), 3.3),
    Part.Circle(Vector(-29.9, 20.2, 0), Vector(0, 0, 1), 2.1),
], False)
sketch16.addConstraint([
    Sketcher.Constraint("Coincident", 1, 3, 0, 3),
    Sketcher.Constraint("Diameter", 0, 6.6),
    Sketcher.Constraint("Diameter", 1, 4.2),
    Sketcher.Constraint("DistanceX", 0, 3, -1, 1, 29.9),
    Sketcher.Constraint("DistanceY", -1, 1, 0, 3, 20.25),
])
pad12 = body.newObject("PartDesign::Pad", "Pad011")
pad12.Profile = sketch16
pad12.Length = 1

sketch17 = body.newObject("Sketcher::SketchObject", "Sketch016")
sketch17.AttachmentSupport = (doc.getObject("XZ_Plane"), [""])
sketch17.MapMode = "FlatFace"
sketch17.AttachmentOffset = App.Placement(Vector(0, 0, -12), App.Rotation())
sketch17.addGeometry([
    Part.Circle(Vector(-29.9, 20.2, 0), Vector(0, 0, 1), 3.3),
    Part.Circle(Vector(-29.9, 20.2, 0), Vector(0, 0, 1), 2.1),
], False)
sketch17.addConstraint([
    Sketcher.Constraint("Coincident", 1, 3, 0, 3),
    Sketcher.Constraint("Diameter", 0, 6.6),
    Sketcher.Constraint("Diameter", 1, 4.2),
    Sketcher.Constraint("DistanceX", 0, 3, -1, 1, 29.9),
    Sketcher.Constraint("DistanceY", -1, 1, 0, 3, 20.25),
])
pad13 = body.newObject("PartDesign::Pad", "Pad012")
pad13.Profile = sketch17
pad13.Length = 1

sketch18 = body.newObject("Sketcher::SketchObject", "Sketch017")
sketch18.AttachmentSupport = (doc.getObject("XZ_Plane"), [""])
sketch18.MapMode = "FlatFace"
sketch18.AttachmentOffset = App.Placement(Vector(0, 0, 12), App.Rotation())
sketch18.addGeometry(Part.Circle(Vector(-29.9, 20.2, 0), Vector(0, 0, 1), 4.5), False)
sketch18.addConstraint([
    Sketcher.Constraint("Diameter", 0, 9.0),
    Sketcher.Constraint("DistanceX", 0, 3, -1, 1, 29.9),
    Sketcher.Constraint("DistanceY", -1, 1, 0, 3, 20.25),
])
pocket5 = body.newObject("PartDesign::Pocket", "Pocket004")
pocket5.Profile = sketch18
pocket5.Length = 12

sketch19 = body.newObject("Sketcher::SketchObject", "Sketch018")
sketch19.AttachmentSupport = (doc.getObject("XZ_Plane"), [""])
sketch19.MapMode = "FlatFace"
sketch19.addGeometry(Part.Circle(Vector(-34.5, -4.2, 0), Vector(0, 0, 1), 1.8), False)
sketch19.addConstraint([
    Sketcher.Constraint("Diameter", 0, 3.5),
    Sketcher.Constraint("DistanceX", 0, 3, -1, 1, 34.5),
    Sketcher.Constraint("DistanceY", 0, 3, -1, 1, 4.15),
])
pocket6 = body.newObject("PartDesign::Pocket", "Pocket005")
pocket6.Profile = sketch19
pocket6.Type = "UpToFirst"
pocket6.Reversed = True

sketch20 = body.newObject("Sketcher::SketchObject", "Sketch019")
sketch20.AttachmentSupport = (doc.getObject("XZ_Plane"), [""])
sketch20.MapMode = "FlatFace"
sketch20.addGeometry(Part.Circle(Vector(-44.5, 17.9, 0), Vector(0, 0, 1), 1.8), False)
sketch20.addConstraint([
    Sketcher.Constraint("Diameter", 0, 3.5),
    Sketcher.Constraint("DistanceX", 0, 3, -1, 1, 44.5),
    Sketcher.Constraint("DistanceY", -1, 1, 0, 3, 17.85),
])
pocket7 = body.newObject("PartDesign::Pocket", "Pocket006")
pocket7.Profile = sketch20
pocket7.Type = "UpToFirst"
pocket7.Reversed = True

sketch21 = body.newObject("Sketcher::SketchObject", "Sketch020")
sketch21.AttachmentSupport = (doc.getObject("XY_Plane"), [""])
sketch21.MapMode = "FlatFace"
sketch21.AttachmentOffset = App.Placement(Vector(0, 0, -37.43), App.Rotation())
sketch21.addGeometry([
    Part.Circle(Vector(-19.5, -15, 0), Vector(0, 0, 1), 1.6),
    Part.Circle(Vector(-38.5, -15, 0), Vector(0, 0, 1), 1.6),
], False)
sketch21.addConstraint([
    Sketcher.Constraint("Equal", 0, 1),
    Sketcher.Constraint("Horizontal", 0, 3, 1, 3),
    Sketcher.Constraint("Diameter", 0, 3.2),
    Sketcher.Constraint("DistanceY", 0, 3, -1, 1, 15.0),
    Sketcher.Constraint("DistanceX", 1, 3, 0, 3, 19.0),
    Sketcher.Constraint("DistanceX", 0, 3, -1, 1, 19.5),
])
pocket8 = body.newObject("PartDesign::Pocket", "Pocket007")
pocket8.Profile = sketch21
pocket8.Type = "ThroughAll"
pocket8.Reversed = True

doc.recompute()
